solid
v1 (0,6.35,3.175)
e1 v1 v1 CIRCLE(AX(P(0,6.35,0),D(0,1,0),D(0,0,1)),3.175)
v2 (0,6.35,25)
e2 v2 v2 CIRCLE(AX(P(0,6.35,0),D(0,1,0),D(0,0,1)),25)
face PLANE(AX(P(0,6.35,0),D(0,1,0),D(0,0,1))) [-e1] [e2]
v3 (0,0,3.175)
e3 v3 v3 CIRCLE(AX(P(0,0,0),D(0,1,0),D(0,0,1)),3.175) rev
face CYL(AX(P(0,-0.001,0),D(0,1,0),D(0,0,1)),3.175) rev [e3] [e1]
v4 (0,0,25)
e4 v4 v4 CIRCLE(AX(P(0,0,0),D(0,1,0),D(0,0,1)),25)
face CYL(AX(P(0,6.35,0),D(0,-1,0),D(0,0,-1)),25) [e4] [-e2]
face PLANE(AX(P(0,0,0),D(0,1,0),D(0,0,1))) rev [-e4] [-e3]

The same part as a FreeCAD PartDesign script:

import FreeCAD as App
import Part
import Sketcher
from FreeCAD import Vector
Q = App.Units.Quantity

doc = App.newDocument("Part")
body = doc.addObject("PartDesign::Body", "Body")

# Sketch on XZ plane
sketch1 = doc.addObject("Sketcher::SketchObject", "Sketch")
body.addObject(sketch1)
sketch1.AttachmentSupport = (doc.XZ_Plane, [""])
sketch1.MapMode = "FlatFace"
sketch1.addGeometry(Part.Circle(Vector(0, 0, 0), Vector(0, 0, 1), 25), False)
sketch1.addConstraint([
    Sketcher.Constraint("Coincident", 0, 3, -1, 1),
    Sketcher.Constraint("Diameter", 0, Q("50 mm")),
])
pad1 = doc.addObject("PartDesign::Pad", "Pad")
body.addObject(pad1)
pad1.Profile = sketch1
pad1.Length = 6.35
pad1.Reversed = True

# Sketch on XZ plane
sketch2 = doc.addObject("Sketcher::SketchObject", "Sketch001")
body.addObject(sketch2)
sketch2.AttachmentSupport = (doc.XZ_Plane, [""])
sketch2.MapMode = "FlatFace"
sketch2.AttachmentOffset = App.Placement(Vector(0, 0, -6.35), App.Rotation())
sketch2.addGeometry(Part.Circle(Vector(0, 0, 0), Vector(0, 0, 1), 3.175), False)
sketch2.addConstraint([
    Sketcher.Constraint("Coincident", 0, 3, -1, 1),
    Sketcher.Constraint("Diameter", 0, Q("6.35 mm")),
])
pocket1 = doc.addObject("PartDesign::Pocket", "Pocket")
body.addObject(pocket1)
pocket1.Profile = sketch2
pocket1.Type = "UpToFirst"
pocket1.Reversed = True

doc.recompute()
